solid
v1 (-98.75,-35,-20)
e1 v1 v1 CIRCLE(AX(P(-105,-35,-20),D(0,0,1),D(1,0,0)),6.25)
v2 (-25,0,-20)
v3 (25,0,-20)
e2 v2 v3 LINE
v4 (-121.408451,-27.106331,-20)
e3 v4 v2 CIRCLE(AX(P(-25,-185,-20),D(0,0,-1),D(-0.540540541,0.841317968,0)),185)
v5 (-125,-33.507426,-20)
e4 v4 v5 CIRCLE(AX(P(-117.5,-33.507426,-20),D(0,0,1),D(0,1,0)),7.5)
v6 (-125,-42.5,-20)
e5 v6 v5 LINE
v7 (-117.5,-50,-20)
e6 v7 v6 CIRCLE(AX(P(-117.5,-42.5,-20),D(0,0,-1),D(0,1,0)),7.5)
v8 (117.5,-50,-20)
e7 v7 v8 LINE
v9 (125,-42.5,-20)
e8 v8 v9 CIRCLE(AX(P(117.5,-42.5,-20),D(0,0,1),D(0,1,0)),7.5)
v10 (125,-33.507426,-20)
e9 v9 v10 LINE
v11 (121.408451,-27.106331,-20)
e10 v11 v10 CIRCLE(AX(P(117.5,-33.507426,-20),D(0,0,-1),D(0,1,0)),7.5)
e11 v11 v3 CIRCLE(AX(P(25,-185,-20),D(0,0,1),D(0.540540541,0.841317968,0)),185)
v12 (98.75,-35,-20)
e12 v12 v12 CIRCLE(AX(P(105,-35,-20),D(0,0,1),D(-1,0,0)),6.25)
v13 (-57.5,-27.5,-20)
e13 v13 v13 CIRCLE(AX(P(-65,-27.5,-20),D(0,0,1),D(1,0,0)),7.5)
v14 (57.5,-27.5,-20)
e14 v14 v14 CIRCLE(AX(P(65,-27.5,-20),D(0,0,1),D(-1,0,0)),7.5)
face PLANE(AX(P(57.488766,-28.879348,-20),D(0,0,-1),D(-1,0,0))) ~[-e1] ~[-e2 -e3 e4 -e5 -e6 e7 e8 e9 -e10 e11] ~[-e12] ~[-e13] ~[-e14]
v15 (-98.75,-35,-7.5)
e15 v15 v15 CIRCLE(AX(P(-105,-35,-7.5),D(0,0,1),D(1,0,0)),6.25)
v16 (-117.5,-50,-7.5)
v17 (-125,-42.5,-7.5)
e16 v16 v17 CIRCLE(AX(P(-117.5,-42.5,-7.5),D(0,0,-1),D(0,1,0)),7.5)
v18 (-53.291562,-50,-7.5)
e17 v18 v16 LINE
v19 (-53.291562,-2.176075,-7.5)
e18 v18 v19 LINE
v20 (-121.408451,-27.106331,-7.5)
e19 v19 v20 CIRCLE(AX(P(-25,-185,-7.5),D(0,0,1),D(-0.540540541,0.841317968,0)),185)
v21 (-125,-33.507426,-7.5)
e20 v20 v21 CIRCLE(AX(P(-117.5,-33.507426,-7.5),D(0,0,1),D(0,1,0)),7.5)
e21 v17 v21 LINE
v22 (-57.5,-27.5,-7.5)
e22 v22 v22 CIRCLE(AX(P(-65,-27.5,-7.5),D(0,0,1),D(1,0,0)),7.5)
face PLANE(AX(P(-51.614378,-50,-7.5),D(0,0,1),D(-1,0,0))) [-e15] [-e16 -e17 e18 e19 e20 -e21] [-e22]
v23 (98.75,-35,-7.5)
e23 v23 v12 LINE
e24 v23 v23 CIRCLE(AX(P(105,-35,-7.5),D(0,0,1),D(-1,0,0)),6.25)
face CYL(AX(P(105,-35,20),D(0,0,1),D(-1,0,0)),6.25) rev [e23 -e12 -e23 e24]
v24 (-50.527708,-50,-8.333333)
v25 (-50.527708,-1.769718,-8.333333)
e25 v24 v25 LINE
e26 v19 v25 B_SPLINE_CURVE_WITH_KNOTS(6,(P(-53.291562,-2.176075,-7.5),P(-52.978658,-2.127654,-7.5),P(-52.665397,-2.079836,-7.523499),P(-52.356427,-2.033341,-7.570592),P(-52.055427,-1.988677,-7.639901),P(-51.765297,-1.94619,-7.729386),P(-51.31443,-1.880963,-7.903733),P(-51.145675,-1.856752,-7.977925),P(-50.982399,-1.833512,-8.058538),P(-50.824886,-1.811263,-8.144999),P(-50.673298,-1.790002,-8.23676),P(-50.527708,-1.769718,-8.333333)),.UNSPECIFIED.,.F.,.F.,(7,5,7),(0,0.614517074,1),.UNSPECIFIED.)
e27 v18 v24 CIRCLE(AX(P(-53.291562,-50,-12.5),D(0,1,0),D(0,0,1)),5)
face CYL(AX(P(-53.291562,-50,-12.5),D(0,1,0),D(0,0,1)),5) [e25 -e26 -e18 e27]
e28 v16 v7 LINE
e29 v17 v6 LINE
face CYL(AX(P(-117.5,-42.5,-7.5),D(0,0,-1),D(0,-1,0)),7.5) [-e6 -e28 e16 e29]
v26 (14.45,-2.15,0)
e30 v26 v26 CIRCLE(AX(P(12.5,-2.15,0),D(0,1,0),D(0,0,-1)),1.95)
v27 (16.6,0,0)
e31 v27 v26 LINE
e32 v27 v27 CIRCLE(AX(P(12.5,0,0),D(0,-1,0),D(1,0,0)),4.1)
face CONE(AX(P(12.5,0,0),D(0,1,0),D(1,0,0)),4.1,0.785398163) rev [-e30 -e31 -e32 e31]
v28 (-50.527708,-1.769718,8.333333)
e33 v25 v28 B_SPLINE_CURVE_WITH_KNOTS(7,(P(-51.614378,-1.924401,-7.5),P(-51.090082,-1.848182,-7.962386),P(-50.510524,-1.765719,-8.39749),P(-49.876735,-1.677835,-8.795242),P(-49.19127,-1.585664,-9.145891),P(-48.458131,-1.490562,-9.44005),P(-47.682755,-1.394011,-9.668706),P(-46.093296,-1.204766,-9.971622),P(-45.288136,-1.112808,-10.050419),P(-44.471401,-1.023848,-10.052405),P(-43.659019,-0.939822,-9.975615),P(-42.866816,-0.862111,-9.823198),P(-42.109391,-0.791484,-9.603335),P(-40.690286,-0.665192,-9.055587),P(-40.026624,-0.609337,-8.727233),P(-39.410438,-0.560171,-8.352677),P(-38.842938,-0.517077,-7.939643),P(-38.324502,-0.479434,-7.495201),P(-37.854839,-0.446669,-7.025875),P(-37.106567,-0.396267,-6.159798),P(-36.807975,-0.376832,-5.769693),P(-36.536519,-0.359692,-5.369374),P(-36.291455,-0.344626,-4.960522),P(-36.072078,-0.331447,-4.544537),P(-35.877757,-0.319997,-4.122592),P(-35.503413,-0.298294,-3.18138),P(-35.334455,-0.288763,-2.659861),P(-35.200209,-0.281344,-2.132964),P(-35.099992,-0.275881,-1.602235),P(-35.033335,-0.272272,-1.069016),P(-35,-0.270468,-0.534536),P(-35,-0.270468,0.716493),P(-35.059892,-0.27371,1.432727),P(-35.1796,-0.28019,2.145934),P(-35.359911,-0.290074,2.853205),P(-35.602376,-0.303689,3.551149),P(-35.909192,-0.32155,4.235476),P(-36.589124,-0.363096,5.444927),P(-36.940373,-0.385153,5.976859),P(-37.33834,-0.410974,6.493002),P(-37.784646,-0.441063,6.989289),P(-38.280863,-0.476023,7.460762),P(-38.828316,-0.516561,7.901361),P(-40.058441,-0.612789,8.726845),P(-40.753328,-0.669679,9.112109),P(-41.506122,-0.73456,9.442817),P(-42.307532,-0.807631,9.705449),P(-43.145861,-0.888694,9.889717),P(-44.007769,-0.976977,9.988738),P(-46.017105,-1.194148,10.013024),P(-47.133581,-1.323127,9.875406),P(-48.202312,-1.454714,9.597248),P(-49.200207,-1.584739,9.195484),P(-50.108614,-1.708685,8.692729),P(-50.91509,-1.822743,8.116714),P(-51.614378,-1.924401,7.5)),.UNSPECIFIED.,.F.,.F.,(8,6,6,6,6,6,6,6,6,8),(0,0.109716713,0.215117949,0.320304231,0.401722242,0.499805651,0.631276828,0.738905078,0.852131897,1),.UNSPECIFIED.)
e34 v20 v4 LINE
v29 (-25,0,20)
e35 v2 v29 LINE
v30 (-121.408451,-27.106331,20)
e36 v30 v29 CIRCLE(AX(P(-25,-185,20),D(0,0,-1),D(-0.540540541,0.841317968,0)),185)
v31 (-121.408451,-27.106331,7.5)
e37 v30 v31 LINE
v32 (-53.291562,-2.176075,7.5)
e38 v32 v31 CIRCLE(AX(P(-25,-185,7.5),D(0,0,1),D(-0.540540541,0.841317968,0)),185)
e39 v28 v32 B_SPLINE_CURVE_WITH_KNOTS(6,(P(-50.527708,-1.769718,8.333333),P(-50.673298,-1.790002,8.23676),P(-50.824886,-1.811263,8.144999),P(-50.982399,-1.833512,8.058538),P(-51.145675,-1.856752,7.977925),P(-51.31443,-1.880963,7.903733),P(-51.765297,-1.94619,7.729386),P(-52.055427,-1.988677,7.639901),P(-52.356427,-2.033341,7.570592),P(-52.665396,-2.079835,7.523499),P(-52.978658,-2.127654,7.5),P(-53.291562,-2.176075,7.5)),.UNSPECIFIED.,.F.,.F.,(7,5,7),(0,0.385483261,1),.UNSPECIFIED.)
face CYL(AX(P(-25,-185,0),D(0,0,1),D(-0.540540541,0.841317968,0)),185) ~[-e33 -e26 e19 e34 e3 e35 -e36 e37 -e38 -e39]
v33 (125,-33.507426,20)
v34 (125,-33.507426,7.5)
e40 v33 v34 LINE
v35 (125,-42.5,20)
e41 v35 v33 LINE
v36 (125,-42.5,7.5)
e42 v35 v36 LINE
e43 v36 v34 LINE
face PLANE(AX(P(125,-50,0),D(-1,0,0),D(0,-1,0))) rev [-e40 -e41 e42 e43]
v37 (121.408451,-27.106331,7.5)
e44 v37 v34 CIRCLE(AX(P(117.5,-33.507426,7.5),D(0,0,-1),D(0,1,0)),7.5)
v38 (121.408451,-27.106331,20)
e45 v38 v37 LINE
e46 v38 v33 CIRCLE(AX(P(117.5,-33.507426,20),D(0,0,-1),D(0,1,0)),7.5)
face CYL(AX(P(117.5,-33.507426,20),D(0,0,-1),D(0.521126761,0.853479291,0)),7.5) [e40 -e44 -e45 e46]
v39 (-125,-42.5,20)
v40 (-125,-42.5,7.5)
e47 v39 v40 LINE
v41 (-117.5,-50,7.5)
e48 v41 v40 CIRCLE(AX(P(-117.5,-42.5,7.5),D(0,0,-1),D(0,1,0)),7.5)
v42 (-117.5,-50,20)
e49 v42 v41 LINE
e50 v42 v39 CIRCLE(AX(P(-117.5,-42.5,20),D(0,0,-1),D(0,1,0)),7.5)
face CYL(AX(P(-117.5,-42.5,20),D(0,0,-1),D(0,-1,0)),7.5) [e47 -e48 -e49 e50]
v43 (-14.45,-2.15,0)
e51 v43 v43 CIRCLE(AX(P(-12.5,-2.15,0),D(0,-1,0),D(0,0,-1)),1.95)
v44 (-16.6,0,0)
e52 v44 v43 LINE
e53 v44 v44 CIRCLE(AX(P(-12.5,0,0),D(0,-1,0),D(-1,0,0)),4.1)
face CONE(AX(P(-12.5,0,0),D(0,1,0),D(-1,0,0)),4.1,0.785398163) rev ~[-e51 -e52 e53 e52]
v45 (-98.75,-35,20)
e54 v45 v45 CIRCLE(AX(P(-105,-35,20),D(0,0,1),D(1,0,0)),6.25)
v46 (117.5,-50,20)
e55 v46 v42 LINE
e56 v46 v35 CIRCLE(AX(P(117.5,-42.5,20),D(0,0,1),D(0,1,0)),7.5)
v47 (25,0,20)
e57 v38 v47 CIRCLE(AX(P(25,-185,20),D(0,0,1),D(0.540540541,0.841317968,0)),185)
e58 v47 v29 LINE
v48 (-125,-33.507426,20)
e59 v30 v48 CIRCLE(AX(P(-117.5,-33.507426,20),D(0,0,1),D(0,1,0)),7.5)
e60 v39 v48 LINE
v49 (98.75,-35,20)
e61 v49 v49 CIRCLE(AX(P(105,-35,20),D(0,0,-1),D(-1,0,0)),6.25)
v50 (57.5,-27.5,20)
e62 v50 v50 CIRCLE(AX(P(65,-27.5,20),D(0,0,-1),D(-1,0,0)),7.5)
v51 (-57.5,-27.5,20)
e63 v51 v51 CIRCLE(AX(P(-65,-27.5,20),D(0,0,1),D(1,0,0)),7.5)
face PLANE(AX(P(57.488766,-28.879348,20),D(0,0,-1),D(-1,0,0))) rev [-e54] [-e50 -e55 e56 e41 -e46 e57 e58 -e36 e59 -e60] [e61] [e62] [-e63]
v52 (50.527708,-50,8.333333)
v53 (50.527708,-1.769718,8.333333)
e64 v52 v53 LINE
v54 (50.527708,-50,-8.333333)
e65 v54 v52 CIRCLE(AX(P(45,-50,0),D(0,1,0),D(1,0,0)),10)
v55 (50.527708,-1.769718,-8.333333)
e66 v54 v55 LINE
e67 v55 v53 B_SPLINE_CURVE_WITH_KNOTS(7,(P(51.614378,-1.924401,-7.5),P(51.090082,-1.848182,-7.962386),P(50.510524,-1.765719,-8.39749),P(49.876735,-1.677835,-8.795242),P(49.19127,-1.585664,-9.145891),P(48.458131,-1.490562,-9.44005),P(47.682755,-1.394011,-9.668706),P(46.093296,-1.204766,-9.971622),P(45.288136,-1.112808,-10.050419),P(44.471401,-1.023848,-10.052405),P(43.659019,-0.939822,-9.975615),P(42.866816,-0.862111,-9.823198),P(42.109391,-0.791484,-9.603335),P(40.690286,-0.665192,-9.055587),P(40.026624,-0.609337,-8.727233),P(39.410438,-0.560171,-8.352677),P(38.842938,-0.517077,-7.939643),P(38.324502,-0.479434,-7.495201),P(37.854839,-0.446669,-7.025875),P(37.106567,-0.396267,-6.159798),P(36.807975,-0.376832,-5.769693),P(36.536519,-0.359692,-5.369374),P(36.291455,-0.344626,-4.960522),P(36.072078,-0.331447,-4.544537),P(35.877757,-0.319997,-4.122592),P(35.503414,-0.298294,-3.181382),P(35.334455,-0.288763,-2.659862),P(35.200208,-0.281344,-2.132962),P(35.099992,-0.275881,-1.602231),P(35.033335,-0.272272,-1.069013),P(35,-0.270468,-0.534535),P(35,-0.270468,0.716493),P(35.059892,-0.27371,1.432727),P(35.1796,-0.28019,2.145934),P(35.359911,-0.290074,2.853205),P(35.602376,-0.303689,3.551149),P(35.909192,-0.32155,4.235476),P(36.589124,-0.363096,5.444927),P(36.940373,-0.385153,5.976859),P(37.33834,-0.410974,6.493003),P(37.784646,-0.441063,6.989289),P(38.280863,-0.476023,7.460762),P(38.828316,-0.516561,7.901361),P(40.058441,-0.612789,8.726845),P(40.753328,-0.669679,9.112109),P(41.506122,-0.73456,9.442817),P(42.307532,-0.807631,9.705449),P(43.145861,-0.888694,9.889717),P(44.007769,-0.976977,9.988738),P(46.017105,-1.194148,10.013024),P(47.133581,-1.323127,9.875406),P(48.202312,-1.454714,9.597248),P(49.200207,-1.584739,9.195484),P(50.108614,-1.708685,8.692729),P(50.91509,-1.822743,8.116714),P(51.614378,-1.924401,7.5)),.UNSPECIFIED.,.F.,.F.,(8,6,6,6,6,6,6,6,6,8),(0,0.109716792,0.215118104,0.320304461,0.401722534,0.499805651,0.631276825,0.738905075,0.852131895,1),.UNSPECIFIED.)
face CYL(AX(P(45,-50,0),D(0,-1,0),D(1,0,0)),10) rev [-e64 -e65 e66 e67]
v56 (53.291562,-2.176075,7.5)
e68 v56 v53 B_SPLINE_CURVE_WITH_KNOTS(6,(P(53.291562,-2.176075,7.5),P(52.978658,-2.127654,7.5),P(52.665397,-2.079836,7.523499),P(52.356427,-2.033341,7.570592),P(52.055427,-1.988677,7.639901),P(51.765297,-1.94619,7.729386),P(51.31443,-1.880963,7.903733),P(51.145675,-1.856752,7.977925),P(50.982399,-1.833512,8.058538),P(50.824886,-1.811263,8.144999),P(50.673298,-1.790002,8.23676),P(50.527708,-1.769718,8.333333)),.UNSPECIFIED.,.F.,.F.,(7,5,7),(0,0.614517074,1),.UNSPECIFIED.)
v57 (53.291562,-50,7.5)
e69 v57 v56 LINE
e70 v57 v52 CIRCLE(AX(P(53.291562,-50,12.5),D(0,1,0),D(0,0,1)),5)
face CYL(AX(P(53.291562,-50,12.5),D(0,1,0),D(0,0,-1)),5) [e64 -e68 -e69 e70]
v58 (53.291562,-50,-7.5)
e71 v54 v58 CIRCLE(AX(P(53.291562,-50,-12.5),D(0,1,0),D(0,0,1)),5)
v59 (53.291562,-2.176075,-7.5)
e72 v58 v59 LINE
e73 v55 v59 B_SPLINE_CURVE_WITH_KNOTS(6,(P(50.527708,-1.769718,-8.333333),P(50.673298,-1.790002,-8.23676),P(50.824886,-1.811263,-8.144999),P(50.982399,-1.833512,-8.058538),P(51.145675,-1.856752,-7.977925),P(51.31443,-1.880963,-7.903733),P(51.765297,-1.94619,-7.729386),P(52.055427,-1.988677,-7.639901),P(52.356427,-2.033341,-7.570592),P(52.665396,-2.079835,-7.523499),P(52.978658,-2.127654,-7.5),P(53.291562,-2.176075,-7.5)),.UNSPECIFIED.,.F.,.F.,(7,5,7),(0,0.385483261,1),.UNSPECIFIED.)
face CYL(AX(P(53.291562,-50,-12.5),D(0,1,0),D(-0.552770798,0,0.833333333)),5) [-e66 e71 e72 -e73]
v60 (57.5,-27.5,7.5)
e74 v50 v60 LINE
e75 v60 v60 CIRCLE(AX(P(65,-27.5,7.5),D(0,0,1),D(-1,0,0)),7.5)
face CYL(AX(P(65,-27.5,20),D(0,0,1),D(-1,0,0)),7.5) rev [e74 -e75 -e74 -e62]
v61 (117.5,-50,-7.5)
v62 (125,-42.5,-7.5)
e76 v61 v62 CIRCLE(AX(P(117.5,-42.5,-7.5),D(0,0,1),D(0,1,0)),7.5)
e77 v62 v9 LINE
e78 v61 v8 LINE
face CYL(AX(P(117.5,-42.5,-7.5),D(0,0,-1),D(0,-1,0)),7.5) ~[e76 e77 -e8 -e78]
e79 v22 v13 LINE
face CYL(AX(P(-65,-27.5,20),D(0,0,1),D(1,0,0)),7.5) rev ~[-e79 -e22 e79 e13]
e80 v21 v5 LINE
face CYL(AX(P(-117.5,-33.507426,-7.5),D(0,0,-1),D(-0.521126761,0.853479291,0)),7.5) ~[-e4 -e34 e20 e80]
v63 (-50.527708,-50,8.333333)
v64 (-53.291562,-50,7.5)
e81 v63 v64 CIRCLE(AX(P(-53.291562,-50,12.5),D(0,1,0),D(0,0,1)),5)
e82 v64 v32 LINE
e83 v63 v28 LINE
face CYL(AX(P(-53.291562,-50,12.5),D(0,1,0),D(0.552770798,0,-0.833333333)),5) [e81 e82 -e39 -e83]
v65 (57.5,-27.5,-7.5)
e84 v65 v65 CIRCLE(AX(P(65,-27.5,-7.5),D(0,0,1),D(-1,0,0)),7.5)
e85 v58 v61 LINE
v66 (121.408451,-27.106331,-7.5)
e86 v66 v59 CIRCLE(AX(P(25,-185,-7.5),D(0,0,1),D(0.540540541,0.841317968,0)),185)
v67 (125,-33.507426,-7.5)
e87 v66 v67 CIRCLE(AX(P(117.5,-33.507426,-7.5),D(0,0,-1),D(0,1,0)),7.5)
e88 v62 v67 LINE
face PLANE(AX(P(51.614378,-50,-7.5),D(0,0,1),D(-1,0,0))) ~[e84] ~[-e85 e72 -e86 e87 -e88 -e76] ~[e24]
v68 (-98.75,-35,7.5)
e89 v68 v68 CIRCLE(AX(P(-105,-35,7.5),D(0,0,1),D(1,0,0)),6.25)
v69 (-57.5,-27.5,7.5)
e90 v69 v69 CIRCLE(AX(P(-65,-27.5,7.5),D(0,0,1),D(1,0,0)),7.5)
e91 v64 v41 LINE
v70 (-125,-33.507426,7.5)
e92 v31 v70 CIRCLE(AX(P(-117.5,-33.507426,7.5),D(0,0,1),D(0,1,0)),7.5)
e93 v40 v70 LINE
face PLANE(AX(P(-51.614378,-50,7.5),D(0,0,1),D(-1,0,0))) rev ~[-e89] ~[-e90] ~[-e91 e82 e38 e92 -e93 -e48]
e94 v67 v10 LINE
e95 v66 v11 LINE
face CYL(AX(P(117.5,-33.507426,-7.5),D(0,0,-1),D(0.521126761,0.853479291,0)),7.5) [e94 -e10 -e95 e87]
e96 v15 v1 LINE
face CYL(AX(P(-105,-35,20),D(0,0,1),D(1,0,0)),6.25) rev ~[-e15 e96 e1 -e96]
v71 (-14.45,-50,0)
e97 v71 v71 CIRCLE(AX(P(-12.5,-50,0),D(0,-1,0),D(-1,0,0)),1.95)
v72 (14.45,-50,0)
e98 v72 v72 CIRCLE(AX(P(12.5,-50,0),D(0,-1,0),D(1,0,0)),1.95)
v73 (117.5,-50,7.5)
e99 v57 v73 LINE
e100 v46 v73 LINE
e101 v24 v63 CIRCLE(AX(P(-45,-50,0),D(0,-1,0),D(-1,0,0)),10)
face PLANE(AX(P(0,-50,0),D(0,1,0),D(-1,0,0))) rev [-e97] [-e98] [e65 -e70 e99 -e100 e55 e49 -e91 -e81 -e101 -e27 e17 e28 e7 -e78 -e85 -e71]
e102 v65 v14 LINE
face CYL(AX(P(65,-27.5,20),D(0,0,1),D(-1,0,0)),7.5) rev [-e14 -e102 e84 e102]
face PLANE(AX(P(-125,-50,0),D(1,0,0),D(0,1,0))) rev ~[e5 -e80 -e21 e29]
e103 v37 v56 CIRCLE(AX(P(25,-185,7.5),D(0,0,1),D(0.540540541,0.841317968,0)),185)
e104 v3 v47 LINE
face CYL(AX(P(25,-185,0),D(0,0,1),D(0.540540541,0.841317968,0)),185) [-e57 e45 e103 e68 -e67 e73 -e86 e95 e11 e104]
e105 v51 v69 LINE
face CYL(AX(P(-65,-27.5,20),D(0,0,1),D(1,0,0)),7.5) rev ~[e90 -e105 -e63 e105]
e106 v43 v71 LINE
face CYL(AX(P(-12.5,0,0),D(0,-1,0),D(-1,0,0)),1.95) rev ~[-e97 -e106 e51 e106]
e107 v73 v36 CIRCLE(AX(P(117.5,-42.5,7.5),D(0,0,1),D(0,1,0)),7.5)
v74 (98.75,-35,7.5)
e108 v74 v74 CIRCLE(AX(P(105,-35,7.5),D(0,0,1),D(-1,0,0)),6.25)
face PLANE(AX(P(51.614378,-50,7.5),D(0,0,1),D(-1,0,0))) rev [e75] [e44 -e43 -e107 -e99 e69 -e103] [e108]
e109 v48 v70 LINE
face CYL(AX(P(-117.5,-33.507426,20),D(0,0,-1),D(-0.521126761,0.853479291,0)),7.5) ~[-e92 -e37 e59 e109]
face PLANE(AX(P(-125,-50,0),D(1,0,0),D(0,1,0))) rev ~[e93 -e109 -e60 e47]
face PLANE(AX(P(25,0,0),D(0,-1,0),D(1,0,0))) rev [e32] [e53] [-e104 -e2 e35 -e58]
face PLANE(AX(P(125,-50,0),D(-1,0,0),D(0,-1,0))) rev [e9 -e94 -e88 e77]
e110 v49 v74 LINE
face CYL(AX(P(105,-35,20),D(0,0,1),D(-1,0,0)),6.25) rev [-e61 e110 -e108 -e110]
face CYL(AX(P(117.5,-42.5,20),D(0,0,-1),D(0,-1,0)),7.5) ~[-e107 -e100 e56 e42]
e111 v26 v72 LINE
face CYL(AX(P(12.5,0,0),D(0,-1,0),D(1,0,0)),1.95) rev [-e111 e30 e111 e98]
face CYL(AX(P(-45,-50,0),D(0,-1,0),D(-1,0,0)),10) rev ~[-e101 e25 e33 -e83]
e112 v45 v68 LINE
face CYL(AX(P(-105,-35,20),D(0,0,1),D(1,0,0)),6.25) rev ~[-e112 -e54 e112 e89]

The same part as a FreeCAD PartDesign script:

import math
import FreeCAD as App
import Part
import Sketcher
from FreeCAD import Vector
Q = App.Units.Quantity


def edges_at(feature, points):
    """Names of the edges that pass closest to the given points."""
    edges = feature.Shape.Edges
    near = lambda p: min(range(len(edges)), key=lambda i: edges[i].distToShape(Part.Vertex(*p))[0])
    return sorted({f"Edge{near(p) + 1}" for p in points})

doc = App.newDocument("Part")
body = doc.addObject("PartDesign::Body", "Body")

sketch1 = doc.addObject("Sketcher::SketchObject", "Sketch")
body.addObject(sketch1)
sketch1.AttachmentSupport = (doc.XY_Plane, [""])
sketch1.MapMode = "FlatFace"
sketch1.addGeometry([
    Part.LineSegment(Vector(-125, -50, 0), Vector(0, -50, 0)),
    Part.LineSegment(Vector(0, -50, 0), Vector(0, 0, 0)),
    Part.LineSegment(Vector(0, 0, 0), Vector(-25, 0, 0)),
    Part.ArcOfCircle(Part.Circle(Vector(-25, -185, 0), Vector(0, 0, 1), 185), math.radians(90), math.radians(123)),
    Part.LineSegment(Vector(-125, -29, 0), Vector(-125, -50, 0)),
], False)
sketch1.addConstraint([
    Sketcher.Constraint("Coincident", 0, 2, 1, 1),
    Sketcher.Constraint("Coincident", 1, 2, 2, 1),
    Sketcher.Constraint("Tangent", 2, 2, 3, 1),
    Sketcher.Constraint("Coincident", 3, 2, 4, 1),
    Sketcher.Constraint("Coincident", 4, 2, 0, 1),
    Sketcher.Constraint("Horizontal", 0),
    Sketcher.Constraint("Vertical", 1),
    Sketcher.Constraint("Horizontal", 2),
    Sketcher.Constraint("Vertical", 4),
    Sketcher.Constraint("Coincident", 1, 2, -1, 1),
    Sketcher.Constraint("Radius", 3, Q("185 mm")),
    Sketcher.Constraint("DistanceX", 0, 1, 0, 2, Q("125 mm")),
    Sketcher.Constraint("DistanceX", 2, 2, 2, 1, Q("25 mm")),
    Sketcher.Constraint("DistanceY", 1, 1, 1, 2, Q("50 mm")),
])
pad1 = doc.addObject("PartDesign::Pad", "Pad")
body.addObject(pad1)
pad1.Profile = sketch1
pad1.Length = 40
pad1.Midplane = True

sketch2 = doc.addObject("Sketcher::SketchObject", "Sketch001")
body.addObject(sketch2)
sketch2.AttachmentSupport = (doc.XY_Plane, [""])
sketch2.MapMode = "FlatFace"
sketch2.AttachmentOffset = App.Placement(Vector(0, 0, 20), App.Rotation())
sketch2.addGeometry([
    Part.Circle(Vector(-105, -35, 0), Vector(0, 0, 1), 6),
    Part.Circle(Vector(-65, -28, 0), Vector(0, 0, 1), 8),
], False)
sketch2.addConstraint([
    Sketcher.Constraint("Diameter", 1, Q("15 mm")),
    Sketcher.Constraint("Diameter", 0, Q("12.5 mm")),
    Sketcher.Constraint("DistanceX", 0, 3, -1, 1, Q("105 mm")),
    Sketcher.Constraint("DistanceY", 0, 3, -1, 1, Q("35 mm")),
    Sketcher.Constraint("DistanceX", 1, 3, -1, 1, Q("65 mm")),
    Sketcher.Constraint("DistanceY", 1, 3, -1, 1, Q("27.5 mm")),
])
pocket1 = doc.addObject("PartDesign::Pocket", "Pocket")
body.addObject(pocket1)
pocket1.Profile = sketch2
pocket1.Type = "ThroughAll"

sketch3 = doc.addObject("Sketcher::SketchObject", "Sketch002")
body.addObject(sketch3)
sketch3.AttachmentSupport = (doc.XZ_Plane, [""])
sketch3.MapMode = "FlatFace"
sketch3.AttachmentOffset = App.Placement(Vector(0, 0, 50), App.Rotation())
sketch3.addGeometry([
    Part.LineSegment(Vector(-52, 8, 0), Vector(-125, 8, 0)),
    Part.LineSegment(Vector(-125, 8, 0), Vector(-125, -8, 0)),
    Part.LineSegment(Vector(-125, -8, 0), Vector(-52, -8, 0)),
    Part.ArcOfCircle(Part.Circle(Vector(-45, 0, 0), Vector(0, 0, 1), 10), math.radians(-131), math.radians(131)),
], False)
sketch3.addConstraint([
    Sketcher.Constraint("Coincident", 0, 2, 1, 1),
    Sketcher.Constraint("Coincident", 1, 2, 2, 1),
    Sketcher.Constraint("Coincident", 2, 2, 3, 1),
    Sketcher.Constraint("Coincident", 3, 2, 0, 1),
    Sketcher.Constraint("Horizontal", 0),
    Sketcher.Constraint("Vertical", 1),
    Sketcher.Constraint("Horizontal", 2),
    Sketcher.Constraint("Symmetric", 2, 2, 3, 2, -1),
    Sketcher.Constraint("Radius", 3, Q("10 mm")),
    Sketcher.Constraint("DistanceY", 1, 2, 1, 1, Q("15 mm")),
    Sketcher.Constraint("DistanceX", 3, 3, -1, 1, Q("45 mm")),
    Sketcher.Constraint("DistanceX", 0, 2, -1, 1, Q("125 mm")),
])
pocket2 = doc.addObject("PartDesign::Pocket", "Pocket001")
body.addObject(pocket2)
pocket2.Profile = sketch3
pocket2.Type = "ThroughAll"

sketch4 = doc.addObject("Sketcher::SketchObject", "Sketch003")
body.addObject(sketch4)
sketch4.AttachmentSupport = (doc.XZ_Plane, [""])
sketch4.MapMode = "FlatFace"
sketch4.addGeometry(Part.Circle(Vector(-12.5, 0, 0), Vector(0, 0, 1), 1.9), False)
sketch4.addConstraint([
    Sketcher.Constraint("PointOnObject", 0, 3, -1),
    Sketcher.Constraint("Diameter", 0, Q("3.9 mm")),
    Sketcher.Constraint("DistanceX", 0, 3, -1, 1, Q("12.5 mm")),
])
doc.recompute()
hole = doc.addObject("PartDesign::Hole", "Hole")
body.addObject(hole)
hole.Profile = sketch4
hole.ThreadType = "None"
hole.Diameter = 3.9
hole.DepthType = "ThroughAll"
hole.HoleCutType = "Countersink"
hole.HoleCutDiameter = 8.2
hole.HoleCutCountersinkAngle = 90
hole.Reversed = True
doc.recompute()

fillet = doc.addObject("PartDesign::Fillet", "Fillet")
body.addObject(fillet)
fillet.Base = (hole, edges_at(hole, [
    (-125, -50, -13.75),
    (-125, -29.356, -13.75),
    (-125, -50, 13.75),
    (-125, -29.356, 13.75),
]))
fillet.Radius = 7.5
doc.recompute()

fillet2 = doc.addObject("PartDesign::Fillet", "Fillet001")
body.addObject(fillet2)
fillet2.Base = (fillet, edges_at(fillet, [(-51.614, -25.962, 7.5), (-51.614, -25.962, -7.5)]))
fillet2.Radius = 5
doc.recompute()

mirrored = doc.addObject("PartDesign::Mirrored", "Mirrored")
body.addObject(mirrored)
mirrored.Originals = [pad1, pocket1, pocket2, hole]
mirrored.MirrorPlane = (doc.YZ_Plane, [""])
body.Tip = mirrored
doc.recompute()

fillet3 = doc.addObject("PartDesign::Fillet", "Fillet002")
body.addObject(fillet3)
fillet3.Base = (mirrored, edges_at(mirrored, [
    (125, -50, -13.75),
    (125, -29.356, -13.75),
    (125, -50, 13.75),
    (125, -29.356, 13.75),
]))
fillet3.Radius = 7.5
doc.recompute()

fillet4 = doc.addObject("PartDesign::Fillet", "Fillet003")
body.addObject(fillet4)
fillet4.Base = (fillet3, edges_at(fillet3, [(51.614, -25.962, 7.5), (51.614, -25.962, -7.5)]))
fillet4.Radius = 5

doc.recompute()
